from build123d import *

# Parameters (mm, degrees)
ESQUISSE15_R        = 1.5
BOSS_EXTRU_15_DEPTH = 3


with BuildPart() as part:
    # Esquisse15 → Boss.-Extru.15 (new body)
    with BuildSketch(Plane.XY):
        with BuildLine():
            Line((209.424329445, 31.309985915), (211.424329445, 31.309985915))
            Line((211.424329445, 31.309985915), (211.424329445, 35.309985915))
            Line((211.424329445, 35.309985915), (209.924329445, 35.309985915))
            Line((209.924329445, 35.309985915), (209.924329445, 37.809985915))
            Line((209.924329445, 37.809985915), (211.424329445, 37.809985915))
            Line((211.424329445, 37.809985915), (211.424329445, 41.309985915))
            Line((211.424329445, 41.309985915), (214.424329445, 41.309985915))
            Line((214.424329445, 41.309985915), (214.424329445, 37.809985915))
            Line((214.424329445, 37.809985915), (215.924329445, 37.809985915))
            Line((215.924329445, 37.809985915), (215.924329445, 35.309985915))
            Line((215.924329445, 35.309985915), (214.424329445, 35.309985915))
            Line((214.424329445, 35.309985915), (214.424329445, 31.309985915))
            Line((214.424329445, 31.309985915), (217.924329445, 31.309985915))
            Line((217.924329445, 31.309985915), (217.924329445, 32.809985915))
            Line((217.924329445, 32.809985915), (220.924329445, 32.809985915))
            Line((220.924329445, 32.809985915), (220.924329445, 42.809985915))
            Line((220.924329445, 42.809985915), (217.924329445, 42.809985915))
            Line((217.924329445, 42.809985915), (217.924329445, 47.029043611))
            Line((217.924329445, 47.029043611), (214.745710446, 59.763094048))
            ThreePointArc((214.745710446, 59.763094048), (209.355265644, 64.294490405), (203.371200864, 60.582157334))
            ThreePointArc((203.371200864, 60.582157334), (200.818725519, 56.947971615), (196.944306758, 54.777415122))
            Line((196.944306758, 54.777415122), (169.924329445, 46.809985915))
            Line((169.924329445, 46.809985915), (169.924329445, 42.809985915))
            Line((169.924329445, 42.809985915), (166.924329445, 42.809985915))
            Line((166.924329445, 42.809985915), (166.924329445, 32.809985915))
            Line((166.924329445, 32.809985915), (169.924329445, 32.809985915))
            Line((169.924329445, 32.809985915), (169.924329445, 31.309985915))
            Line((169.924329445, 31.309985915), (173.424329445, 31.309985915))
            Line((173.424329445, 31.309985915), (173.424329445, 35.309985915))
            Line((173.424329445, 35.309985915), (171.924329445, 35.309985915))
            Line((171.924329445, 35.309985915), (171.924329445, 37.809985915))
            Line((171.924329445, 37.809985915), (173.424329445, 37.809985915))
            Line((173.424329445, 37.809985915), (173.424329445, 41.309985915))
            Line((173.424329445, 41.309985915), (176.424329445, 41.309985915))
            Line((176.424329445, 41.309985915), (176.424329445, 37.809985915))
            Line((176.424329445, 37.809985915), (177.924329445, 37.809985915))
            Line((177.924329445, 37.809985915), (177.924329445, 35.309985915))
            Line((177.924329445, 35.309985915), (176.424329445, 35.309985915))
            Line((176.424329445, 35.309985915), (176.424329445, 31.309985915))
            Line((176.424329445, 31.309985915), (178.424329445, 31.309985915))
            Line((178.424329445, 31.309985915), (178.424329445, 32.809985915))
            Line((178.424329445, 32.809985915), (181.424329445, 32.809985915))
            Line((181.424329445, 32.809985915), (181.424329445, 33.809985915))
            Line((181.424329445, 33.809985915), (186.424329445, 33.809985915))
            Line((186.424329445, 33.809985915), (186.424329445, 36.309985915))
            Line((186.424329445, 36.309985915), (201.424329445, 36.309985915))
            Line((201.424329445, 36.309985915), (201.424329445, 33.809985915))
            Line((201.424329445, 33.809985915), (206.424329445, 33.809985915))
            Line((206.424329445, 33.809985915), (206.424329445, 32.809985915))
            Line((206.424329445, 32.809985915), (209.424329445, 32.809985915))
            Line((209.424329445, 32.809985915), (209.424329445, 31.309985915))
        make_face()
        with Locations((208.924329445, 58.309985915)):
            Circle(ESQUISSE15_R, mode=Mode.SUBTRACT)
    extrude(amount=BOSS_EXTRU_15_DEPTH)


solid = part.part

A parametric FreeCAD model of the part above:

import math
import FreeCAD as App
import Part
import Sketcher

doc = App.newDocument("Part")
params = doc.addObject("Spreadsheet::Sheet", "Params")
for row, (alias, value) in enumerate([
    ("sketch1_diameter", "3 mm"),
    ("sketch1_radius", "6 mm"),
    ("sketch1_radius2", "10 mm"),
    ("sketch1_width", "2 mm"),
    ("sketch1_width2", "3 mm"),
    ("pad1_length", "3 mm"),
], start=1):
    params.set(f"A{row}", alias)
    params.set(f"B{row}", "=" + value)
    params.setAlias(f"B{row}", alias)

body = doc.addObject("PartDesign::Body", "Body")

# Sketch on XY plane
sketch1 = body.newObject("Sketcher::SketchObject", "Sketch")
sketch1.AttachmentSupport = (doc.getObject("XY_Plane"), [""])
sketch1.MapMode = "FlatFace"
sketch1.addGeometry([
    Part.LineSegment(App.Vector(209.4, 31.3, 0), App.Vector(211.4, 31.3, 0)),  # 0
    Part.LineSegment(App.Vector(211.4, 31.3, 0), App.Vector(211.4, 35.3, 0)),  # 1
    Part.LineSegment(App.Vector(211.4, 35.3, 0), App.Vector(209.9, 35.3, 0)),  # 2
    Part.LineSegment(App.Vector(209.9, 35.3, 0), App.Vector(209.9, 37.8, 0)),  # 3
    Part.LineSegment(App.Vector(209.9, 37.8, 0), App.Vector(211.4, 37.8, 0)),  # 4
    Part.LineSegment(App.Vector(211.4, 37.8, 0), App.Vector(211.4, 41.3, 0)),  # 5
    Part.LineSegment(App.Vector(211.4, 41.3, 0), App.Vector(214.4, 41.3, 0)),  # 6
    Part.LineSegment(App.Vector(214.4, 41.3, 0), App.Vector(214.4, 37.8, 0)),  # 7
    Part.LineSegment(App.Vector(214.4, 37.8, 0), App.Vector(215.9, 37.8, 0)),  # 8
    Part.LineSegment(App.Vector(215.9, 37.8, 0), App.Vector(215.9, 35.3, 0)),  # 9
    Part.LineSegment(App.Vector(215.9, 35.3, 0), App.Vector(214.4, 35.3, 0)),  # 10
    Part.LineSegment(App.Vector(214.4, 35.3, 0), App.Vector(214.4, 31.3, 0)),  # 11
    Part.LineSegment(App.Vector(214.4, 31.3, 0), App.Vector(217.9, 31.3, 0)),  # 12
    Part.LineSegment(App.Vector(217.9, 31.3, 0), App.Vector(217.9, 32.8, 0)),  # 13
    Part.LineSegment(App.Vector(217.9, 32.8, 0), App.Vector(220.9, 32.8, 0)),  # 14
    Part.LineSegment(App.Vector(220.9, 32.8, 0), App.Vector(220.9, 42.8, 0)),  # 15
    Part.LineSegment(App.Vector(220.9, 42.8, 0), App.Vector(217.9, 42.8, 0)),  # 16
    Part.LineSegment(App.Vector(217.9, 42.8, 0), App.Vector(217.9, 47, 0)),  # 17
    Part.LineSegment(App.Vector(217.9, 47, 0), App.Vector(214.7, 59.8, 0)),  # 18
    Part.ArcOfCircle(Part.Circle(App.Vector(208.9, 58.3, 0), App.Vector(0, 0, 1), 6), math.radians(14), math.radians(158)),  # 19
    Part.ArcOfCircle(Part.Circle(App.Vector(194.1, 64.4, 0), App.Vector(0, 0, 1), 10), math.radians(-74), math.radians(-22)),  # 20
    Part.LineSegment(App.Vector(196.9, 54.8, 0), App.Vector(169.9, 46.8, 0)),  # 21
    Part.LineSegment(App.Vector(169.9, 46.8, 0), App.Vector(169.9, 42.8, 0)),  # 22
    Part.LineSegment(App.Vector(169.9, 42.8, 0), App.Vector(166.9, 42.8, 0)),  # 23
    Part.LineSegment(App.Vector(166.9, 42.8, 0), App.Vector(166.9, 32.8, 0)),  # 24
    Part.LineSegment(App.Vector(166.9, 32.8, 0), App.Vector(169.9, 32.8, 0)),  # 25
    Part.LineSegment(App.Vector(169.9, 32.8, 0), App.Vector(169.9, 31.3, 0)),  # 26
    Part.LineSegment(App.Vector(169.9, 31.3, 0), App.Vector(173.4, 31.3, 0)),  # 27
    Part.LineSegment(App.Vector(173.4, 31.3, 0), App.Vector(173.4, 35.3, 0)),  # 28
    Part.LineSegment(App.Vector(173.4, 35.3, 0), App.Vector(171.9, 35.3, 0)),  # 29
    Part.LineSegment(App.Vector(171.9, 35.3, 0), App.Vector(171.9, 37.8, 0)),  # 30
    Part.LineSegment(App.Vector(171.9, 37.8, 0), App.Vector(173.4, 37.8, 0)),  # 31
    Part.LineSegment(App.Vector(173.4, 37.8, 0), App.Vector(173.4, 41.3, 0)),  # 32
    Part.LineSegment(App.Vector(173.4, 41.3, 0), App.Vector(176.4, 41.3, 0)),  # 33
    Part.LineSegment(App.Vector(176.4, 41.3, 0), App.Vector(176.4, 37.8, 0)),  # 34
    Part.LineSegment(App.Vector(176.4, 37.8, 0), App.Vector(177.9, 37.8, 0)),  # 35
    Part.LineSegment(App.Vector(177.9, 37.8, 0), App.Vector(177.9, 35.3, 0)),  # 36
    Part.LineSegment(App.Vector(177.9, 35.3, 0), App.Vector(176.4, 35.3, 0)),  # 37
    Part.LineSegment(App.Vector(176.4, 35.3, 0), App.Vector(176.4, 31.3, 0)),  # 38
    Part.LineSegment(App.Vector(176.4, 31.3, 0), App.Vector(178.4, 31.3, 0)),  # 39
    Part.LineSegment(App.Vector(178.4, 31.3, 0), App.Vector(178.4, 32.8, 0)),  # 40
    Part.LineSegment(App.Vector(178.4, 32.8, 0), App.Vector(181.4, 32.8, 0)),  # 41
    Part.LineSegment(App.Vector(181.4, 32.8, 0), App.Vector(181.4, 33.8, 0)),  # 42
    Part.LineSegment(App.Vector(181.4, 33.8, 0), App.Vector(186.4, 33.8, 0)),  # 43
    Part.LineSegment(App.Vector(186.4, 33.8, 0), App.Vector(186.4, 36.3, 0)),  # 44
    Part.LineSegment(App.Vector(186.4, 36.3, 0), App.Vector(201.4, 36.3, 0)),  # 45
    Part.LineSegment(App.Vector(201.4, 36.3, 0), App.Vector(201.4, 33.8, 0)),  # 46
    Part.LineSegment(App.Vector(201.4, 33.8, 0), App.Vector(206.4, 33.8, 0)),  # 47
    Part.LineSegment(App.Vector(206.4, 33.8, 0), App.Vector(206.4, 32.8, 0)),  # 48
    Part.LineSegment(App.Vector(206.4, 32.8, 0), App.Vector(209.4, 32.8, 0)),  # 49
    Part.LineSegment(App.Vector(209.4, 32.8, 0), App.Vector(209.4, 31.3, 0)),  # 50
    Part.Circle(App.Vector(208.9, 58.3, 0), App.Vector(0, 0, 1), 1.5),  # 51
], False)
sketch1.addConstraint([
    Sketcher.Constraint("Coincident", 0, 2, 1, 1),
    Sketcher.Constraint("Coincident", 1, 2, 2, 1),
    Sketcher.Constraint("Coincident", 2, 2, 3, 1),
    Sketcher.Constraint("Coincident", 3, 2, 4, 1),
    Sketcher.Constraint("Coincident", 4, 2, 5, 1),
    Sketcher.Constraint("Coincident", 5, 2, 6, 1),
    Sketcher.Constraint("Coincident", 6, 2, 7, 1),
    Sketcher.Constraint("Coincident", 7, 2, 8, 1),
    Sketcher.Constraint("Coincident", 8, 2, 9, 1),
    Sketcher.Constraint("Coincident", 9, 2, 10, 1),
    Sketcher.Constraint("Coincident", 10, 2, 11, 1),
    Sketcher.Constraint("Coincident", 11, 2, 12, 1),
    Sketcher.Constraint("Coincident", 12, 2, 13, 1),
    Sketcher.Constraint("Coincident", 13, 2, 14, 1),
    Sketcher.Constraint("Coincident", 14, 2, 15, 1),
    Sketcher.Constraint("Coincident", 15, 2, 16, 1),
    Sketcher.Constraint("Coincident", 16, 2, 17, 1),
    Sketcher.Constraint("Coincident", 17, 2, 18, 1),
    Sketcher.Constraint("Tangent", 18, 2, 19, 1),
    Sketcher.Constraint("Tangent", 19, 2, 20, 2),
    Sketcher.Constraint("Tangent", 20, 1, 21, 1),
    Sketcher.Constraint("Coincident", 21, 2, 22, 1),
    Sketcher.Constraint("Coincident", 22, 2, 23, 1),
    Sketcher.Constraint("Coincident", 23, 2, 24, 1),
    Sketcher.Constraint("Coincident", 24, 2, 25, 1),
    Sketcher.Constraint("Coincident", 25, 2, 26, 1),
    Sketcher.Constraint("Coincident", 26, 2, 27, 1),
    Sketcher.Constraint("Coincident", 27, 2, 28, 1),
    Sketcher.Constraint("Coincident", 28, 2, 29, 1),
    Sketcher.Constraint("Coincident", 29, 2, 30, 1),
    Sketcher.Constraint("Coincident", 30, 2, 31, 1),
    Sketcher.Constraint("Coincident", 31, 2, 32, 1),
    Sketcher.Constraint("Coincident", 32, 2, 33, 1),
    Sketcher.Constraint("Coincident", 33, 2, 34, 1),
    Sketcher.Constraint("Coincident", 34, 2, 35, 1),
    Sketcher.Constraint("Coincident", 35, 2, 36, 1),
    Sketcher.Constraint("Coincident", 36, 2, 37, 1),
    Sketcher.Constraint("Coincident", 37, 2, 38, 1),
    Sketcher.Constraint("Coincident", 38, 2, 39, 1),
    Sketcher.Constraint("Coincident", 39, 2, 40, 1),
    Sketcher.Constraint("Coincident", 40, 2, 41, 1),
    Sketcher.Constraint("Coincident", 41, 2, 42, 1),
    Sketcher.Constraint("Coincident", 42, 2, 43, 1),
    Sketcher.Constraint("Coincident", 43, 2, 44, 1),
    Sketcher.Constraint("Coincident", 44, 2, 45, 1),
    Sketcher.Constraint("Coincident", 45, 2, 46, 1),
    Sketcher.Constraint("Coincident", 46, 2, 47, 1),
    Sketcher.Constraint("Coincident", 47, 2, 48, 1),
    Sketcher.Constraint("Coincident", 48, 2, 49, 1),
    Sketcher.Constraint("Coincident", 49, 2, 50, 1),
    Sketcher.Constraint("Coincident", 50, 2, 0, 1),
    Sketcher.Constraint("Horizontal", 0),
    Sketcher.Constraint("Vertical", 1),
    Sketcher.Constraint("Horizontal", 2),
    Sketcher.Constraint("Vertical", 3),
    Sketcher.Constraint("Horizontal", 4),
    Sketcher.Constraint("Vertical", 5),
    Sketcher.Constraint("Horizontal", 6),
    Sketcher.Constraint("Vertical", 7),
    Sketcher.Constraint("Horizontal", 8),
    Sketcher.Constraint("Vertical", 9),
    Sketcher.Constraint("Horizontal", 10),
    Sketcher.Constraint("Vertical", 11),
    Sketcher.Constraint("Horizontal", 12),
    Sketcher.Constraint("Vertical", 13),
    Sketcher.Constraint("Horizontal", 14),
    Sketcher.Constraint("Vertical", 15),
    Sketcher.Constraint("Horizontal", 16),
    Sketcher.Constraint("Vertical", 17),
    Sketcher.Constraint("Vertical", 22),
    Sketcher.Constraint("Horizontal", 23),
    Sketcher.Constraint("Vertical", 24),
    Sketcher.Constraint("Horizontal", 25),
    Sketcher.Constraint("Vertical", 26),
    Sketcher.Constraint("Horizontal", 27),
    Sketcher.Constraint("Vertical", 28),
    Sketcher.Constraint("Horizontal", 29),
    Sketcher.Constraint("Vertical", 30),
    Sketcher.Constraint("Horizontal", 31),
    Sketcher.Constraint("Vertical", 32),
    Sketcher.Constraint("Horizontal", 33),
    Sketcher.Constraint("Vertical", 34),
    Sketcher.Constraint("Horizontal", 35),
    Sketcher.Constraint("Vertical", 36),
    Sketcher.Constraint("Horizontal", 37),
    Sketcher.Constraint("Vertical", 38),
    Sketcher.Constraint("Horizontal", 39),
    Sketcher.Constraint("Vertical", 40),
    Sketcher.Constraint("Horizontal", 41),
    Sketcher.Constraint("Vertical", 42),
    Sketcher.Constraint("Horizontal", 43),
    Sketcher.Constraint("Vertical", 44),
    Sketcher.Constraint("Horizontal", 45),
    Sketcher.Constraint("Vertical", 46),
    Sketcher.Constraint("Horizontal", 47),
    Sketcher.Constraint("Vertical", 48),
    Sketcher.Constraint("Horizontal", 49),
    Sketcher.Constraint("Vertical", 50),
    Sketcher.Constraint("Coincident", 51, 3, 19, 3),
    Sketcher.Constraint("Horizontal", 4, 2, 7, 2),
    Sketcher.Constraint("Horizontal", 2, 2, 9, 2),
    Sketcher.Constraint("Horizontal", 0, 2, 11, 2),
    Sketcher.Constraint("Horizontal", 16, 2, 22, 2),
    Sketcher.Constraint("Horizontal", 14, 2, 24, 2),
    Sketcher.Constraint("Horizontal", 12, 2, 26, 2),
    Sketcher.Constraint("Horizontal", 10, 2, 28, 2),
    Sketcher.Constraint("Horizontal", 8, 2, 30, 2),
    Sketcher.Constraint("Horizontal", 6, 2, 32, 2),
    Sketcher.Constraint("Horizontal", 31, 2, 34, 2),
    Sketcher.Constraint("Horizontal", 29, 2, 36, 2),
    Sketcher.Constraint("Horizontal", 27, 2, 38, 2),
    Sketcher.Constraint("Horizontal", 25, 2, 40, 2),
    Sketcher.Constraint("Horizontal", 43, 2, 46, 2),
    Sketcher.Constraint("Horizontal", 41, 2, 48, 2),
    Sketcher.Constraint("Vertical", 1, 2, 4, 2),
    Sketcher.Constraint("Vertical", 7, 2, 10, 2),
    Sketcher.Constraint("Vertical", 13, 2, 16, 2),
    Sketcher.Constraint("Vertical", 22, 2, 25, 2),
    Sketcher.Constraint("Vertical", 28, 2, 31, 2),
    Sketcher.Constraint("Vertical", 34, 2, 37, 2),
    Sketcher.Constraint("Equal", 4, 8),
    Sketcher.Constraint("Equal", 6, 14),
    Sketcher.Constraint("Equal", 16, 23),
    Sketcher.Constraint("Equal", 12, 27),
    Sketcher.Constraint("Equal", 10, 29),
    Sketcher.Constraint("Equal", 25, 33),
    Sketcher.Constraint("Equal", 31, 35),
    Sketcher.Constraint("Equal", 0, 39),
    Sketcher.Constraint("Equal", 33, 41),
    Sketcher.Constraint("Equal", 43, 47),
    Sketcher.Constraint("Equal", 41, 49),
    Sketcher.Constraint("Equal", 27, 5),
    Sketcher.Constraint("Equal", 37, 13),
    Sketcher.Constraint("Equal", 11, 22),
    Sketcher.Constraint("Equal", 36, 44),
    Sketcher.Constraint("Diameter", 51, 3.0),
    Sketcher.Constraint("Radius", 19, 6.0),
    Sketcher.Constraint("Radius", 20, 10.0),
    Sketcher.Constraint("DistanceX", 0, 1, 0, 2, 2.0),
    Sketcher.Constraint("DistanceX", 6, 1, 6, 2, 3.0),
    Sketcher.Constraint("DistanceX", 43, 1, 43, 2, 5.0),
    Sketcher.Constraint("DistanceX", 45, 1, 45, 2, 15.0),
    Sketcher.Constraint("DistanceY", 1, 1, 1, 2, 4.0),
    Sketcher.Constraint("DistanceY", 15, 1, 15, 2, 10.0),
    Sketcher.Constraint("DistanceY", 42, 1, 42, 2, 1.0),
    Sketcher.Constraint("DistanceX", 2, 2, 2, 1, 1.5),
    Sketcher.Constraint("DistanceX", 12, 1, 12, 2, 3.5),
    Sketcher.Constraint("DistanceY", 3, 1, 3, 2, 2.5),
    Sketcher.Constraint("DistanceY", 0, 2, 19, 3, 27.0),
    Sketcher.Constraint("DistanceX", 19, 3, 2, 2, 1.0),
    Sketcher.Constraint("DistanceX", -1, 1, 19, 2, 203.371201),
    Sketcher.Constraint("Distance", 21, 28.170181),
    Sketcher.Constraint("DistanceY", 17, 1, 17, 2, 4.219058),
    Sketcher.Constraint("DistanceY", -1, 1, 20, 3, 64.36911),
])
sketch1.setExpression("Constraints[135]", "Params.sketch1_diameter")
sketch1.setExpression("Constraints[136]", "Params.sketch1_radius")
sketch1.setExpression("Constraints[137]", "Params.sketch1_radius2")
sketch1.setExpression("Constraints[138]", "Params.sketch1_width")
sketch1.setExpression("Constraints[139]", "Params.sketch1_width2")
pad1 = body.newObject("PartDesign::Pad", "Pad")
pad1.Profile = sketch1
pad1.setExpression("Length", "Params.pad1_length")

doc.recompute()
